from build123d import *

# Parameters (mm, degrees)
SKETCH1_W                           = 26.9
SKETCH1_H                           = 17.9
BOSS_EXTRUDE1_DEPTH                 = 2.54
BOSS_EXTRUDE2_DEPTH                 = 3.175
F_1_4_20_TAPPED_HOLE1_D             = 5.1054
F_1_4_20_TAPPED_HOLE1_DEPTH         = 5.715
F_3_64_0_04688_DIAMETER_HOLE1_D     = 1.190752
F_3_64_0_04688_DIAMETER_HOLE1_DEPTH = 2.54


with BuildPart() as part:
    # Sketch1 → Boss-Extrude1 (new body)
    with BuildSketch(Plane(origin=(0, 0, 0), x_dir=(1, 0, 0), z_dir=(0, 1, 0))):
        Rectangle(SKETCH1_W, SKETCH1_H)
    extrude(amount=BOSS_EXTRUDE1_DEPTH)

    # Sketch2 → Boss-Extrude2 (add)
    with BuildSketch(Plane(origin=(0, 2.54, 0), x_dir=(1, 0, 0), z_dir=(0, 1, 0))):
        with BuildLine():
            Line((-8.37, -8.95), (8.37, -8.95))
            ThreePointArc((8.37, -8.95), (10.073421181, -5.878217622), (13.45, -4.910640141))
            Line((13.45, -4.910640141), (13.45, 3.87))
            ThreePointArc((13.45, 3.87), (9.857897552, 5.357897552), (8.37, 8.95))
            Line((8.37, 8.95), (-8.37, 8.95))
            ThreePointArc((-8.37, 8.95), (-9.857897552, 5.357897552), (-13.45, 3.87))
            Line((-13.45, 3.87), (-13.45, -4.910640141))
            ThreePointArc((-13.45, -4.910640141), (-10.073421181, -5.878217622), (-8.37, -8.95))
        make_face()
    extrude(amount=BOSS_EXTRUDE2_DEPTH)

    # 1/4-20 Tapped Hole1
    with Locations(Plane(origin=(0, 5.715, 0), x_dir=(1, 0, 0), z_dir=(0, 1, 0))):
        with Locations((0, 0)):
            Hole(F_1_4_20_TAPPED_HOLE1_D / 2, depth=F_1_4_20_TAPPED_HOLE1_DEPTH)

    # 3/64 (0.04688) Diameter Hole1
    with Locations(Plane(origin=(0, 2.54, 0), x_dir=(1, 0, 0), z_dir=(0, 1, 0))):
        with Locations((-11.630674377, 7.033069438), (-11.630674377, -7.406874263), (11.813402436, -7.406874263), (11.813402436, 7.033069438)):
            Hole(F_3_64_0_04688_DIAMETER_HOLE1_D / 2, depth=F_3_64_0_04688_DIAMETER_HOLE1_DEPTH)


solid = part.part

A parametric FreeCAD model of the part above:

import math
import FreeCAD as App
import Part
import Sketcher

V = App.Vector
Q = App.Units.Quantity

doc = App.newDocument("Part")
body = doc.addObject("PartDesign::Body", "Body")

sketch1 = doc.addObject("Sketcher::SketchObject", "Sketch")
body.addObject(sketch1)
sketch1.AttachmentSupport = (doc.XZ_Plane, [""])
sketch1.MapMode = "FlatFace"
sketch1.addGeometry([
    Part.LineSegment(V(-13.45, -8.95, 0), V(-13.45, 8.95, 0)),
    Part.LineSegment(V(-13.45, 8.95, 0), V(13.45, 8.95, 0)),
    Part.LineSegment(V(13.45, 8.95, 0), V(13.45, -8.95, 0)),
    Part.LineSegment(V(13.45, -8.95, 0), V(-13.45, -8.95, 0)),
], False)
sketch1.addConstraint([
    Sketcher.Constraint("Coincident", 0, 2, 1, 1),
    Sketcher.Constraint("Coincident", 1, 2, 2, 1),
    Sketcher.Constraint("Coincident", 2, 2, 3, 1),
    Sketcher.Constraint("Coincident", 3, 2, 0, 1),
    Sketcher.Constraint("Vertical", 0),
    Sketcher.Constraint("Horizontal", 1),
    Sketcher.Constraint("Vertical", 2),
    Sketcher.Constraint("Horizontal", 3),
    Sketcher.Constraint("Symmetric", 0, 2, 2, 2, -1, 1),
    Sketcher.Constraint("DistanceX", 1, 1, 1, 2, 26.9),
    Sketcher.Constraint("DistanceY", 0, 1, 0, 2, 17.9),
])
pad1 = doc.addObject("PartDesign::Pad", "Pad")
body.addObject(pad1)
pad1.Profile = sketch1
pad1.Length = Q("0.1 in")
pad1.Reversed = True

sketch2 = doc.addObject("Sketcher::SketchObject", "Sketch001")
body.addObject(sketch2)
sketch2.AttachmentSupport = (doc.XZ_Plane, [""])
sketch2.MapMode = "FlatFace"
sketch2.AttachmentOffset = App.Placement(V(0, 0, -0.1 * 25.4), App.Rotation())
sketch2.addGeometry([
    Part.LineSegment(V(-8.37, 8.95, 0), V(8.37, 8.95, 0)),
    Part.ArcOfCircle(Part.Circle(V(12.92968, 9.47032, 0), V(0, 0, 1), 4.589272), math.radians(-173.48995), math.radians(-83.48995)),
    Part.LineSegment(V(13.45, 4.91064, 0), V(13.45, -3.87, 0)),
    Part.ArcOfCircle(Part.Circle(V(13.45, -8.95, 0), V(0, 0, 1), 5.08), math.radians(90), math.radians(180)),
    Part.LineSegment(V(8.37, -8.95, 0), V(-8.37, -8.95, 0)),
    Part.ArcOfCircle(Part.Circle(V(-13.45, -8.95, 0), V(0, 0, 1), 5.08), math.radians(0), math.radians(90)),
    Part.LineSegment(V(-13.45, -3.87, 0), V(-13.45, 4.91064, 0)),
    Part.ArcOfCircle(Part.Circle(V(-12.92968, 9.47032, 0), V(0, 0, 1), 4.589272), math.radians(-96.51005), math.radians(-6.51005)),
], False)
sketch2.addConstraint([
    Sketcher.Constraint("Coincident", 0, 2, 1, 1),
    Sketcher.Constraint("Coincident", 1, 2, 2, 1),
    Sketcher.Constraint("Coincident", 2, 2, 3, 1),
    Sketcher.Constraint("Coincident", 3, 2, 4, 1),
    Sketcher.Constraint("Coincident", 4, 2, 5, 1),
    Sketcher.Constraint("Coincident", 5, 2, 6, 1),
    Sketcher.Constraint("Coincident", 6, 2, 7, 1),
    Sketcher.Constraint("Coincident", 7, 2, 0, 1),
    Sketcher.Constraint("Horizontal", 0),
    Sketcher.Constraint("Vertical", 2),
    Sketcher.Constraint("Horizontal", 4),
    Sketcher.Constraint("Vertical", 6),
    Sketcher.Constraint("Equal", 3, 5),
    Sketcher.Constraint("Equal", 1, 7),
    Sketcher.Constraint("Symmetric", 0, 2, 4, 2, -1, 1),
    Sketcher.Constraint("Symmetric", 3, 3, 5, 3, -2),
    Sketcher.Constraint("Symmetric", 1, 3, 7, 3, -2),
    Sketcher.Constraint("Horizontal", 5, 3, 3, 2),
    Sketcher.Constraint("Horizontal", 1, 2, 6, 2),
    Sketcher.Constraint("Vertical", 3, 3, 1, 2),
    Sketcher.Constraint("Radius", 3, Q("0.2 in")),
    Sketcher.Constraint("Radius", 1, 4.589272),
    Sketcher.Constraint("DistanceX", 0, 1, 0, 2, 16.74),
    Sketcher.Constraint("DistanceY", 2, 2, 2, 1, 8.78064),
    Sketcher.Constraint("DistanceY", 3, 3, -1, 1, 8.95),
])
pad2 = doc.addObject("PartDesign::Pad", "Pad001")
body.addObject(pad2)
pad2.Profile = sketch2
pad2.Length = Q("0.125 in")
pad2.Reversed = True

sketch3 = doc.addObject("Sketcher::SketchObject", "Sketch002")
body.addObject(sketch3)
sketch3.AttachmentSupport = (doc.XZ_Plane, [""])
sketch3.MapMode = "FlatFace"
sketch3.AttachmentOffset = App.Placement(V(0, 0, -0.225 * 25.4), App.Rotation())
sketch3.addGeometry(Part.Circle(V(0, 0, 0), V(0, 0, 1), 2.5527), False)
sketch3.addConstraint([
    Sketcher.Constraint("Coincident", 0, 3, -1, 1),
    Sketcher.Constraint("Diameter", 0, Q("0.201 in")),
])
doc.recompute()
hole = doc.addObject("PartDesign::Hole", "Hole")
body.addObject(hole)
hole.Profile = sketch3
hole.ThreadType = "None"
hole.Diameter = Q("0.201 in")
hole.DepthType = "Dimension"
hole.Depth = Q("0.225 in")
hole.DrillPoint = "Flat"
hole.Reversed = True

sketch4 = doc.addObject("Sketcher::SketchObject", "Sketch003")
body.addObject(sketch4)
sketch4.AttachmentSupport = (doc.XZ_Plane, [""])
sketch4.MapMode = "FlatFace"
sketch4.AttachmentOffset = App.Placement(V(0, 0, -0.1 * 25.4), App.Rotation())
sketch4.addGeometry([
    Part.Circle(V(-11.630674, -7.033069, 0), V(0, 0, 1), 0.595376),
    Part.Circle(V(-11.630674, 7.406874, 0), V(0, 0, 1), 0.595376),
    Part.Circle(V(11.813402, 7.406874, 0), V(0, 0, 1), 0.595376),
    Part.Circle(V(11.813402, -7.033069, 0), V(0, 0, 1), 0.595376),
], False)
sketch4.addConstraint([
    Sketcher.Constraint("Equal", 0, 1),
    Sketcher.Constraint("Equal", 1, 2),
    Sketcher.Constraint("Equal", 2, 3),
    Sketcher.Constraint("Horizontal", 1, 3, 2, 3),
    Sketcher.Constraint("Horizontal", 0, 3, 3, 3),
    Sketcher.Constraint("Vertical", 0, 3, 1, 3),
    Sketcher.Constraint("Vertical", 2, 3, 3, 3),
    Sketcher.Constraint("Diameter", 0, 1.190752),
    Sketcher.Constraint("DistanceY", 0, 3, -1, 1, 7.033069),
    Sketcher.Constraint("DistanceX", 0, 3, -1, 1, 11.630674),
    Sketcher.Constraint("DistanceY", -1, 1, 1, 3, 7.406874),
    Sketcher.Constraint("DistanceX", -1, 1, 2, 3, 11.813402),
])
doc.recompute()
hole2 = doc.addObject("PartDesign::Hole", "Hole001")
body.addObject(hole2)
hole2.Profile = sketch4
hole2.ThreadType = "None"
hole2.Diameter = 1.190752
hole2.DepthType = "Dimension"
hole2.Depth = Q("0.1 in")
hole2.DrillPoint = "Flat"
hole2.Reversed = True

doc.recompute()
